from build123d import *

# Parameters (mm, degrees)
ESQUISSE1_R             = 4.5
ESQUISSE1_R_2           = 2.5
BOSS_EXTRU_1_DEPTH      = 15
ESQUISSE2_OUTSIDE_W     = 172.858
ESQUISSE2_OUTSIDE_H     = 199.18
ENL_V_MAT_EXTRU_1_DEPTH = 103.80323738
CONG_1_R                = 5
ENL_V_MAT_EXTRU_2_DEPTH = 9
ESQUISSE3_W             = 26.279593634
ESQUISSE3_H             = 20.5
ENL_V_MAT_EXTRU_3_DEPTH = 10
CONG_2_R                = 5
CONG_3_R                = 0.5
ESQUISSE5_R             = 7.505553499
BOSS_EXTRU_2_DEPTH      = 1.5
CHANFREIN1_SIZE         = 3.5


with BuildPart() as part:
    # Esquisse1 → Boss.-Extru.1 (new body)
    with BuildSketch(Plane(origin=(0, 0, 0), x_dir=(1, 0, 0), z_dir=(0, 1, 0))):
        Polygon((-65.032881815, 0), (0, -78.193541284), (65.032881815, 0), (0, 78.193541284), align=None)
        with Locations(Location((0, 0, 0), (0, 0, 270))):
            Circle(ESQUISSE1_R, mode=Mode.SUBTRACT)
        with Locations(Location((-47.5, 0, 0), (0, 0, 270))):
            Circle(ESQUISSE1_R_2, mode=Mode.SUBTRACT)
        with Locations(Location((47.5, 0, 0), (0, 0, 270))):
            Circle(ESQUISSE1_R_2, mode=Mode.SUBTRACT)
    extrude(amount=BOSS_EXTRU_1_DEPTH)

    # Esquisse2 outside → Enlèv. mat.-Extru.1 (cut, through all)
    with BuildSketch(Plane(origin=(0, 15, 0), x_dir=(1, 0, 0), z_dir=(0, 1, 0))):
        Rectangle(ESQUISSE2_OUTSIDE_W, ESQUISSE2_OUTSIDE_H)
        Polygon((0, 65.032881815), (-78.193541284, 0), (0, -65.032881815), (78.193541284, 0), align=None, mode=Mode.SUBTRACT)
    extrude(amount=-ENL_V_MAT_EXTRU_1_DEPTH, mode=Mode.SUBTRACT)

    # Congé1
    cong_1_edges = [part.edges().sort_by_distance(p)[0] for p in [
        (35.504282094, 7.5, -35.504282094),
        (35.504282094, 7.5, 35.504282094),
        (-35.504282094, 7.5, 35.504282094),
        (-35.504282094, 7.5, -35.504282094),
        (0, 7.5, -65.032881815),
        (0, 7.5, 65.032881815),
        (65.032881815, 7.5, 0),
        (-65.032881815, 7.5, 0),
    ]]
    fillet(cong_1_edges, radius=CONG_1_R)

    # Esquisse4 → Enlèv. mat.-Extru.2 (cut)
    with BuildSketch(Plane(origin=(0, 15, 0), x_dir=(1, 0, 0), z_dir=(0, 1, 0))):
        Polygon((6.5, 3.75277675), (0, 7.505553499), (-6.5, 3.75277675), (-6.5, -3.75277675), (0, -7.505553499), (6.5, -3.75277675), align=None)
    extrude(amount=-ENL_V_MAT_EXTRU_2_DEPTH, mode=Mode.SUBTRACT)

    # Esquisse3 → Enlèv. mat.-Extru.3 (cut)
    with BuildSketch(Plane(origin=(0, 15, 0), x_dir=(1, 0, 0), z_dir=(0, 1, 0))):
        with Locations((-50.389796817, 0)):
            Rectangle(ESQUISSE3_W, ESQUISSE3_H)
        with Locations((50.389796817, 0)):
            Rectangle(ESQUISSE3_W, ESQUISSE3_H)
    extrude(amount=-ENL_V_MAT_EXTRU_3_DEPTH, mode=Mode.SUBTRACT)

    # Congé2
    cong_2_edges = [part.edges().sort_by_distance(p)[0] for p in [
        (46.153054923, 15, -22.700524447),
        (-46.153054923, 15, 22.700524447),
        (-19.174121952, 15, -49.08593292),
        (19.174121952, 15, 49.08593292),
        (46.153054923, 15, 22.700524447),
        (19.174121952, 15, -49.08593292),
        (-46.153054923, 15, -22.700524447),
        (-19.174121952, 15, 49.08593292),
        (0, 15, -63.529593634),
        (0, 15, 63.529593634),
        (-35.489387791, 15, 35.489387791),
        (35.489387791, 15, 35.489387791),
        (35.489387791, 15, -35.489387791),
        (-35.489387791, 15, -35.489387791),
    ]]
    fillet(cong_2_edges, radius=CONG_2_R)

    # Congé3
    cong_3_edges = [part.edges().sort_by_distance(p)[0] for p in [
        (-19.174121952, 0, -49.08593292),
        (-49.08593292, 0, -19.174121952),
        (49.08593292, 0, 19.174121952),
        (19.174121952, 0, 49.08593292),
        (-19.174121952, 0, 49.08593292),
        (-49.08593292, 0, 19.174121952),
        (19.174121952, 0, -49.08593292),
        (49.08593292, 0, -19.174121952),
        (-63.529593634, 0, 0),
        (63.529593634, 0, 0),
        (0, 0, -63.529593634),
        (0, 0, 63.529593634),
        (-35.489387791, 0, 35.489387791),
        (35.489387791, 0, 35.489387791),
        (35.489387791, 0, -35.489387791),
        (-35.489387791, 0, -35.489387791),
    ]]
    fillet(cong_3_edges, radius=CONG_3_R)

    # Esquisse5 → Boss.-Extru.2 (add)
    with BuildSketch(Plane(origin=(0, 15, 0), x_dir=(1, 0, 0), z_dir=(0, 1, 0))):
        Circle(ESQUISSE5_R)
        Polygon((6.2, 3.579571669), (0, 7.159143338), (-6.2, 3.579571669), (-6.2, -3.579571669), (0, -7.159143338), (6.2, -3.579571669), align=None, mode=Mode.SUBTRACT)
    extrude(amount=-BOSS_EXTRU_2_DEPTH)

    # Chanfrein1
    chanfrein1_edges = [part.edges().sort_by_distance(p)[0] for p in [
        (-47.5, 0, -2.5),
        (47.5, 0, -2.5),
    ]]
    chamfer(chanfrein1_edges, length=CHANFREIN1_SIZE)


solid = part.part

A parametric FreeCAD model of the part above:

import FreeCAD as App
import Part
import Sketcher

V = App.Vector
Q = App.Units.Quantity


def edges_at(feature, points):
    """Names of the edges that pass closest to the given points."""
    edges = feature.Shape.Edges
    near = lambda p: min(range(len(edges)), key=lambda i: edges[i].distToShape(Part.Vertex(*p))[0])
    return sorted({f"Edge{near(p) + 1}" for p in points})

doc = App.newDocument("Part")
body = doc.addObject("PartDesign::Body", "Body")

# Sketch on XZ plane
sketch1 = body.newObject("Sketcher::SketchObject", "Sketch")
sketch1.AttachmentSupport = (doc.getObject("XZ_Plane"), [""])
sketch1.MapMode = "FlatFace"
sketch1.addGeometry([
    Part.LineSegment(V(-65, 0, 0), V(0, 78.2, 0)),  # 0
    Part.LineSegment(V(0, 78.2, 0), V(65, 0, 0)),  # 1
    Part.LineSegment(V(65, 0, 0), V(0, -78.2, 0)),  # 2
    Part.LineSegment(V(0, -78.2, 0), V(-65, 0, 0)),  # 3
    Part.Circle(V(-47.5, 0, 0), V(0, 0, 1), 2.5),  # 4
    Part.Circle(V(0, 0, 0), V(0, 0, 1), 4.5),  # 5
    Part.Circle(V(47.5, 0, 0), V(0, 0, 1), 2.5),  # 6
], False)
sketch1.addConstraint([
    Sketcher.Constraint("Coincident", 0, 2, 1, 1),
    Sketcher.Constraint("Coincident", 1, 2, 2, 1),
    Sketcher.Constraint("Coincident", 2, 2, 3, 1),
    Sketcher.Constraint("Coincident", 3, 2, 0, 1),
    Sketcher.Constraint("Coincident", 5, 3, -1, 1),
    Sketcher.Constraint("Equal", 4, 6),
    Sketcher.Constraint("Symmetric", 4, 3, 6, 3, -1, 1),
    Sketcher.Constraint("Symmetric", 0, 2, 2, 2, -1, 1),
    Sketcher.Constraint("Symmetric", 1, 2, 3, 2, -1, 1),
    Sketcher.Constraint("PointOnObject", 4, 3, -1),
    Sketcher.Constraint("PointOnObject", 0, 2, -2),
    Sketcher.Constraint("PointOnObject", 1, 2, -1),
    Sketcher.Constraint("Diameter", 4, 5.0),
    Sketcher.Constraint("Diameter", 5, 9.0),
    Sketcher.Constraint("DistanceX", 4, 3, 6, 3, 95.0),
    Sketcher.Constraint("Angle", 0, Q("50.25 deg")),
    Sketcher.Constraint("DistanceY", -1, 1, 0, 2, 78.193541),
])
pad1 = body.newObject("PartDesign::Pad", "Pad")
pad1.Profile = sketch1
pad1.Length = 15
pad1.Reversed = True

# Sketch on XZ plane
sketch2 = body.newObject("Sketcher::SketchObject", "Sketch001")
sketch2.AttachmentSupport = (doc.getObject("XZ_Plane"), [""])
sketch2.MapMode = "FlatFace"
sketch2.AttachmentOffset = App.Placement(V(0, 0, -15), App.Rotation())
sketch2.addGeometry([
    Part.LineSegment(V(-86, -100, 0), V(-86, 100, 0)),  # 0
    Part.LineSegment(V(-86, 100, 0), V(86, 100, 0)),  # 1
    Part.LineSegment(V(86, 100, 0), V(86, -100, 0)),  # 2
    Part.LineSegment(V(86, -100, 0), V(-86, -100, 0)),  # 3
    Part.LineSegment(V(-78, 0, 0), V(0, -65, 0)),  # 4
    Part.LineSegment(V(0, -65, 0), V(78, 0, 0)),  # 5
    Part.LineSegment(V(78, 0, 0), V(0, 65, 0)),  # 6
    Part.LineSegment(V(0, 65, 0), V(-78, 0, 0)),  # 7
], False)
sketch2.addConstraint([
    Sketcher.Constraint("Coincident", 0, 2, 1, 1),
    Sketcher.Constraint("Coincident", 1, 2, 2, 1),
    Sketcher.Constraint("Coincident", 2, 2, 3, 1),
    Sketcher.Constraint("Coincident", 3, 2, 0, 1),
    Sketcher.Constraint("Coincident", 4, 2, 5, 1),
    Sketcher.Constraint("Coincident", 5, 2, 6, 1),
    Sketcher.Constraint("Coincident", 6, 2, 7, 1),
    Sketcher.Constraint("Coincident", 7, 2, 4, 1),
    Sketcher.Constraint("Vertical", 0),
    Sketcher.Constraint("Horizontal", 1),
    Sketcher.Constraint("Vertical", 2),
    Sketcher.Constraint("Horizontal", 3),
    Sketcher.Constraint("Symmetric", 0, 2, 2, 2, -1, 1),
    Sketcher.Constraint("Symmetric", 4, 2, 6, 2, -1, 1),
    Sketcher.Constraint("Symmetric", 5, 2, 7, 2, -1, 1),
    Sketcher.Constraint("PointOnObject", 4, 2, -2),
    Sketcher.Constraint("PointOnObject", 5, 2, -1),
    Sketcher.Constraint("DistanceY", 0, 1, 0, 2, 199.18),
    Sketcher.Constraint("Angle", 4, Q("-39.75 deg")),
    Sketcher.Constraint("DistanceX", 1, 1, 1, 2, 172.858),
    Sketcher.Constraint("DistanceY", 4, 2, -1, 1, 65.032882),
])
pocket1 = body.newObject("PartDesign::Pocket", "Pocket")
pocket1.Profile = sketch2
pocket1.Type = "ThroughAll"
pocket1.Reversed = True
doc.recompute()

fillet = body.newObject("PartDesign::Fillet", "Fillet")
fillet.Base = (pocket1, edges_at(pocket1, [
    (35.504, 7.5, -35.504),
    (35.504, 7.5, 35.504),
    (-35.504, 7.5, 35.504),
    (-35.504, 7.5, -35.504),
    (0, 7.5, -65.033),
    (0, 7.5, 65.033),
    (65.033, 7.5, 0),
    (-65.033, 7.5, 0),
]))
fillet.Radius = 5

# Sketch on XZ plane
sketch3 = body.newObject("Sketcher::SketchObject", "Sketch002")
sketch3.AttachmentSupport = (doc.getObject("XZ_Plane"), [""])
sketch3.MapMode = "FlatFace"
sketch3.AttachmentOffset = App.Placement(V(0, 0, -15), App.Rotation())
sketch3.addGeometry([
    Part.LineSegment(V(6, -4, 0), V(0, -8, 0)),  # 0
    Part.LineSegment(V(0, -8, 0), V(-6, -4, 0)),  # 1
    Part.LineSegment(V(-6, -4, 0), V(-6, 4, 0)),  # 2
    Part.LineSegment(V(-6, 4, 0), V(0, 8, 0)),  # 3
    Part.LineSegment(V(0, 8, 0), V(6, 4, 0)),  # 4
    Part.LineSegment(V(6, 4, 0), V(6, -4, 0)),  # 5
], False)
sketch3.addConstraint([
    Sketcher.Constraint("Coincident", 0, 2, 1, 1),
    Sketcher.Constraint("Coincident", 1, 2, 2, 1),
    Sketcher.Constraint("Coincident", 2, 2, 3, 1),
    Sketcher.Constraint("Coincident", 3, 2, 4, 1),
    Sketcher.Constraint("Coincident", 4, 2, 5, 1),
    Sketcher.Constraint("Coincident", 5, 2, 0, 1),
    Sketcher.Constraint("Vertical", 2),
    Sketcher.Constraint("Vertical", 5),
    Sketcher.Constraint("Symmetric", 0, 2, 3, 2, -1, 1),
    Sketcher.Constraint("Symmetric", 1, 2, 4, 2, -1, 1),
    Sketcher.Constraint("PointOnObject", 0, 2, -2),
    Sketcher.Constraint("Parallel", 0, 3),
    Sketcher.Constraint("Horizontal", 2, 2, 4, 2),
    Sketcher.Constraint("Angle", 0, Q("-150 deg")),
    Sketcher.Constraint("DistanceX", 2, 2, 4, 2, 13.0),
    Sketcher.Constraint("DistanceY", 2, 1, 2, 2, 7.505554),
])
pocket2 = body.newObject("PartDesign::Pocket", "Pocket001")
pocket2.Profile = sketch3
pocket2.Length = 9
pocket2.Reversed = True

# Sketch on XZ plane
sketch4 = body.newObject("Sketcher::SketchObject", "Sketch003")
sketch4.AttachmentSupport = (doc.getObject("XZ_Plane"), [""])
sketch4.MapMode = "FlatFace"
sketch4.AttachmentOffset = App.Placement(V(0, 0, -15), App.Rotation())
sketch4.addGeometry([
    Part.LineSegment(V(-64, -10, 0), V(-64, 10, 0)),  # 0
    Part.LineSegment(V(-64, 10, 0), V(-37, 10, 0)),  # 1
    Part.LineSegment(V(-37, 10, 0), V(-37, -10, 0)),  # 2
    Part.LineSegment(V(-37, -10, 0), V(-64, -10, 0)),  # 3
    Part.LineSegment(V(37, -10, 0), V(37, 10, 0)),  # 4
    Part.LineSegment(V(37, 10, 0), V(64, 10, 0)),  # 5
    Part.LineSegment(V(64, 10, 0), V(64, -10, 0)),  # 6
    Part.LineSegment(V(64, -10, 0), V(37, -10, 0)),  # 7
], False)
sketch4.addConstraint([
    Sketcher.Constraint("Coincident", 0, 2, 1, 1),
    Sketcher.Constraint("Coincident", 1, 2, 2, 1),
    Sketcher.Constraint("Coincident", 2, 2, 3, 1),
    Sketcher.Constraint("Coincident", 3, 2, 0, 1),
    Sketcher.Constraint("Coincident", 4, 2, 5, 1),
    Sketcher.Constraint("Coincident", 5, 2, 6, 1),
    Sketcher.Constraint("Coincident", 6, 2, 7, 1),
    Sketcher.Constraint("Coincident", 7, 2, 4, 1),
    Sketcher.Constraint("Vertical", 0),
    Sketcher.Constraint("Horizontal", 1),
    Sketcher.Constraint("Vertical", 2),
    Sketcher.Constraint("Horizontal", 3),
    Sketcher.Constraint("Vertical", 4),
    Sketcher.Constraint("Horizontal", 5),
    Sketcher.Constraint("Vertical", 6),
    Sketcher.Constraint("Horizontal", 7),
    Sketcher.Constraint("Symmetric", 2, 2, 4, 2, -1, 1),
    Sketcher.Constraint("Symmetric", 0, 2, 6, 2, -1, 1),
    Sketcher.Constraint("Horizontal", 1, 2, 4, 2),
    Sketcher.Constraint("DistanceY", 0, 1, 0, 2, 20.5),
    Sketcher.Constraint("DistanceX", 1, 2, 4, 2, 74.5),
    Sketcher.Constraint("DistanceX", 1, 1, 1, 2, 26.279594),
])
pocket3 = body.newObject("PartDesign::Pocket", "Pocket002")
pocket3.Profile = sketch4
pocket3.Length = 10
pocket3.Reversed = True
doc.recompute()

fillet2 = body.newObject("PartDesign::Fillet", "Fillet001")
fillet2.Base = (pocket3, edges_at(pocket3, [
    (46.153, 15, -22.701),
    (-46.153, 15, 22.701),
    (-19.174, 15, -49.086),
    (19.174, 15, 49.086),
    (46.153, 15, 22.701),
    (19.174, 15, -49.086),
    (-46.153, 15, -22.701),
    (-19.174, 15, 49.086),
    (0, 15, -63.53),
    (0, 15, 63.53),
    (-35.489, 15, 35.489),
    (35.489, 15, 35.489),
    (35.489, 15, -35.489),
    (-35.489, 15, -35.489),
]))
fillet2.Radius = 5
doc.recompute()

fillet3 = body.newObject("PartDesign::Fillet", "Fillet002")
fillet3.Base = (fillet2, edges_at(fillet2, [
    (-19.174, 0, -49.086),
    (-49.086, 0, -19.174),
    (49.086, 0, 19.174),
    (19.174, 0, 49.086),
    (-19.174, 0, 49.086),
    (-49.086, 0, 19.174),
    (19.174, 0, -49.086),
    (49.086, 0, -19.174),
    (-63.53, 0, 0),
    (63.53, 0, 0),
    (0, 0, -63.53),
    (0, 0, 63.53),
    (-35.489, 0, 35.489),
    (35.489, 0, 35.489),
    (35.489, 0, -35.489),
    (-35.489, 0, -35.489),
]))
fillet3.Radius = 0.5

# Sketch on XZ plane
sketch5 = body.newObject("Sketcher::SketchObject", "Sketch004")
sketch5.AttachmentSupport = (doc.getObject("XZ_Plane"), [""])
sketch5.MapMode = "FlatFace"
sketch5.AttachmentOffset = App.Placement(V(0, 0, -15), App.Rotation())
sketch5.addGeometry([
    Part.Circle(V(0, 0, 0), V(0, 0, 1), 8),  # 0
    Part.LineSegment(V(0, -7, 0), V(6, -4, 0)),  # 1
    Part.LineSegment(V(6, -4, 0), V(6, 4, 0)),  # 2
    Part.LineSegment(V(6, 4, 0), V(0, 7, 0)),  # 3
    Part.LineSegment(V(0, 7, 0), V(-6, 4, 0)),  # 4
    Part.LineSegment(V(-6, 4, 0), V(-6, -4, 0)),  # 5
    Part.LineSegment(V(-6, -4, 0), V(0, -7, 0)),  # 6
], False)
sketch5.addConstraint([
    Sketcher.Constraint("Coincident", 1, 2, 2, 1),
    Sketcher.Constraint("Coincident", 2, 2, 3, 1),
    Sketcher.Constraint("Coincident", 3, 2, 4, 1),
    Sketcher.Constraint("Coincident", 4, 2, 5, 1),
    Sketcher.Constraint("Coincident", 5, 2, 6, 1),
    Sketcher.Constraint("Coincident", 6, 2, 1, 1),
    Sketcher.Constraint("Vertical", 2),
    Sketcher.Constraint("Vertical", 5),
    Sketcher.Constraint("Coincident", 0, 3, -1, 1),
    Sketcher.Constraint("Symmetric", 1, 2, 4, 2, -1, 1),
    Sketcher.Constraint("Symmetric", 3, 2, 6, 2, -1, 1),
    Sketcher.Constraint("PointOnObject", 3, 2, -2),
    Sketcher.Constraint("Parallel", 3, 6),
    Sketcher.Constraint("Horizontal", 2, 2, 4, 2),
    Sketcher.Constraint("Angle", 1, Q("30 deg")),
    Sketcher.Constraint("DistanceX", -1, 1, 1, 2, 6.2),
    Sketcher.Constraint("Diameter", 0, 15.011107),
    Sketcher.Constraint("DistanceY", 2, 1, 2, 2, 7.159143),
])
pad2 = body.newObject("PartDesign::Pad", "Pad001")
pad2.Profile = sketch5
pad2.Length = 1.5
doc.recompute()

chamfer = body.newObject("PartDesign::Chamfer", "Chamfer")
chamfer.Base = (pad2, edges_at(pad2, [(-47.5, 0, -2.5), (47.5, 0, -2.5)]))
chamfer.Size = 3.5

doc.recompute()
